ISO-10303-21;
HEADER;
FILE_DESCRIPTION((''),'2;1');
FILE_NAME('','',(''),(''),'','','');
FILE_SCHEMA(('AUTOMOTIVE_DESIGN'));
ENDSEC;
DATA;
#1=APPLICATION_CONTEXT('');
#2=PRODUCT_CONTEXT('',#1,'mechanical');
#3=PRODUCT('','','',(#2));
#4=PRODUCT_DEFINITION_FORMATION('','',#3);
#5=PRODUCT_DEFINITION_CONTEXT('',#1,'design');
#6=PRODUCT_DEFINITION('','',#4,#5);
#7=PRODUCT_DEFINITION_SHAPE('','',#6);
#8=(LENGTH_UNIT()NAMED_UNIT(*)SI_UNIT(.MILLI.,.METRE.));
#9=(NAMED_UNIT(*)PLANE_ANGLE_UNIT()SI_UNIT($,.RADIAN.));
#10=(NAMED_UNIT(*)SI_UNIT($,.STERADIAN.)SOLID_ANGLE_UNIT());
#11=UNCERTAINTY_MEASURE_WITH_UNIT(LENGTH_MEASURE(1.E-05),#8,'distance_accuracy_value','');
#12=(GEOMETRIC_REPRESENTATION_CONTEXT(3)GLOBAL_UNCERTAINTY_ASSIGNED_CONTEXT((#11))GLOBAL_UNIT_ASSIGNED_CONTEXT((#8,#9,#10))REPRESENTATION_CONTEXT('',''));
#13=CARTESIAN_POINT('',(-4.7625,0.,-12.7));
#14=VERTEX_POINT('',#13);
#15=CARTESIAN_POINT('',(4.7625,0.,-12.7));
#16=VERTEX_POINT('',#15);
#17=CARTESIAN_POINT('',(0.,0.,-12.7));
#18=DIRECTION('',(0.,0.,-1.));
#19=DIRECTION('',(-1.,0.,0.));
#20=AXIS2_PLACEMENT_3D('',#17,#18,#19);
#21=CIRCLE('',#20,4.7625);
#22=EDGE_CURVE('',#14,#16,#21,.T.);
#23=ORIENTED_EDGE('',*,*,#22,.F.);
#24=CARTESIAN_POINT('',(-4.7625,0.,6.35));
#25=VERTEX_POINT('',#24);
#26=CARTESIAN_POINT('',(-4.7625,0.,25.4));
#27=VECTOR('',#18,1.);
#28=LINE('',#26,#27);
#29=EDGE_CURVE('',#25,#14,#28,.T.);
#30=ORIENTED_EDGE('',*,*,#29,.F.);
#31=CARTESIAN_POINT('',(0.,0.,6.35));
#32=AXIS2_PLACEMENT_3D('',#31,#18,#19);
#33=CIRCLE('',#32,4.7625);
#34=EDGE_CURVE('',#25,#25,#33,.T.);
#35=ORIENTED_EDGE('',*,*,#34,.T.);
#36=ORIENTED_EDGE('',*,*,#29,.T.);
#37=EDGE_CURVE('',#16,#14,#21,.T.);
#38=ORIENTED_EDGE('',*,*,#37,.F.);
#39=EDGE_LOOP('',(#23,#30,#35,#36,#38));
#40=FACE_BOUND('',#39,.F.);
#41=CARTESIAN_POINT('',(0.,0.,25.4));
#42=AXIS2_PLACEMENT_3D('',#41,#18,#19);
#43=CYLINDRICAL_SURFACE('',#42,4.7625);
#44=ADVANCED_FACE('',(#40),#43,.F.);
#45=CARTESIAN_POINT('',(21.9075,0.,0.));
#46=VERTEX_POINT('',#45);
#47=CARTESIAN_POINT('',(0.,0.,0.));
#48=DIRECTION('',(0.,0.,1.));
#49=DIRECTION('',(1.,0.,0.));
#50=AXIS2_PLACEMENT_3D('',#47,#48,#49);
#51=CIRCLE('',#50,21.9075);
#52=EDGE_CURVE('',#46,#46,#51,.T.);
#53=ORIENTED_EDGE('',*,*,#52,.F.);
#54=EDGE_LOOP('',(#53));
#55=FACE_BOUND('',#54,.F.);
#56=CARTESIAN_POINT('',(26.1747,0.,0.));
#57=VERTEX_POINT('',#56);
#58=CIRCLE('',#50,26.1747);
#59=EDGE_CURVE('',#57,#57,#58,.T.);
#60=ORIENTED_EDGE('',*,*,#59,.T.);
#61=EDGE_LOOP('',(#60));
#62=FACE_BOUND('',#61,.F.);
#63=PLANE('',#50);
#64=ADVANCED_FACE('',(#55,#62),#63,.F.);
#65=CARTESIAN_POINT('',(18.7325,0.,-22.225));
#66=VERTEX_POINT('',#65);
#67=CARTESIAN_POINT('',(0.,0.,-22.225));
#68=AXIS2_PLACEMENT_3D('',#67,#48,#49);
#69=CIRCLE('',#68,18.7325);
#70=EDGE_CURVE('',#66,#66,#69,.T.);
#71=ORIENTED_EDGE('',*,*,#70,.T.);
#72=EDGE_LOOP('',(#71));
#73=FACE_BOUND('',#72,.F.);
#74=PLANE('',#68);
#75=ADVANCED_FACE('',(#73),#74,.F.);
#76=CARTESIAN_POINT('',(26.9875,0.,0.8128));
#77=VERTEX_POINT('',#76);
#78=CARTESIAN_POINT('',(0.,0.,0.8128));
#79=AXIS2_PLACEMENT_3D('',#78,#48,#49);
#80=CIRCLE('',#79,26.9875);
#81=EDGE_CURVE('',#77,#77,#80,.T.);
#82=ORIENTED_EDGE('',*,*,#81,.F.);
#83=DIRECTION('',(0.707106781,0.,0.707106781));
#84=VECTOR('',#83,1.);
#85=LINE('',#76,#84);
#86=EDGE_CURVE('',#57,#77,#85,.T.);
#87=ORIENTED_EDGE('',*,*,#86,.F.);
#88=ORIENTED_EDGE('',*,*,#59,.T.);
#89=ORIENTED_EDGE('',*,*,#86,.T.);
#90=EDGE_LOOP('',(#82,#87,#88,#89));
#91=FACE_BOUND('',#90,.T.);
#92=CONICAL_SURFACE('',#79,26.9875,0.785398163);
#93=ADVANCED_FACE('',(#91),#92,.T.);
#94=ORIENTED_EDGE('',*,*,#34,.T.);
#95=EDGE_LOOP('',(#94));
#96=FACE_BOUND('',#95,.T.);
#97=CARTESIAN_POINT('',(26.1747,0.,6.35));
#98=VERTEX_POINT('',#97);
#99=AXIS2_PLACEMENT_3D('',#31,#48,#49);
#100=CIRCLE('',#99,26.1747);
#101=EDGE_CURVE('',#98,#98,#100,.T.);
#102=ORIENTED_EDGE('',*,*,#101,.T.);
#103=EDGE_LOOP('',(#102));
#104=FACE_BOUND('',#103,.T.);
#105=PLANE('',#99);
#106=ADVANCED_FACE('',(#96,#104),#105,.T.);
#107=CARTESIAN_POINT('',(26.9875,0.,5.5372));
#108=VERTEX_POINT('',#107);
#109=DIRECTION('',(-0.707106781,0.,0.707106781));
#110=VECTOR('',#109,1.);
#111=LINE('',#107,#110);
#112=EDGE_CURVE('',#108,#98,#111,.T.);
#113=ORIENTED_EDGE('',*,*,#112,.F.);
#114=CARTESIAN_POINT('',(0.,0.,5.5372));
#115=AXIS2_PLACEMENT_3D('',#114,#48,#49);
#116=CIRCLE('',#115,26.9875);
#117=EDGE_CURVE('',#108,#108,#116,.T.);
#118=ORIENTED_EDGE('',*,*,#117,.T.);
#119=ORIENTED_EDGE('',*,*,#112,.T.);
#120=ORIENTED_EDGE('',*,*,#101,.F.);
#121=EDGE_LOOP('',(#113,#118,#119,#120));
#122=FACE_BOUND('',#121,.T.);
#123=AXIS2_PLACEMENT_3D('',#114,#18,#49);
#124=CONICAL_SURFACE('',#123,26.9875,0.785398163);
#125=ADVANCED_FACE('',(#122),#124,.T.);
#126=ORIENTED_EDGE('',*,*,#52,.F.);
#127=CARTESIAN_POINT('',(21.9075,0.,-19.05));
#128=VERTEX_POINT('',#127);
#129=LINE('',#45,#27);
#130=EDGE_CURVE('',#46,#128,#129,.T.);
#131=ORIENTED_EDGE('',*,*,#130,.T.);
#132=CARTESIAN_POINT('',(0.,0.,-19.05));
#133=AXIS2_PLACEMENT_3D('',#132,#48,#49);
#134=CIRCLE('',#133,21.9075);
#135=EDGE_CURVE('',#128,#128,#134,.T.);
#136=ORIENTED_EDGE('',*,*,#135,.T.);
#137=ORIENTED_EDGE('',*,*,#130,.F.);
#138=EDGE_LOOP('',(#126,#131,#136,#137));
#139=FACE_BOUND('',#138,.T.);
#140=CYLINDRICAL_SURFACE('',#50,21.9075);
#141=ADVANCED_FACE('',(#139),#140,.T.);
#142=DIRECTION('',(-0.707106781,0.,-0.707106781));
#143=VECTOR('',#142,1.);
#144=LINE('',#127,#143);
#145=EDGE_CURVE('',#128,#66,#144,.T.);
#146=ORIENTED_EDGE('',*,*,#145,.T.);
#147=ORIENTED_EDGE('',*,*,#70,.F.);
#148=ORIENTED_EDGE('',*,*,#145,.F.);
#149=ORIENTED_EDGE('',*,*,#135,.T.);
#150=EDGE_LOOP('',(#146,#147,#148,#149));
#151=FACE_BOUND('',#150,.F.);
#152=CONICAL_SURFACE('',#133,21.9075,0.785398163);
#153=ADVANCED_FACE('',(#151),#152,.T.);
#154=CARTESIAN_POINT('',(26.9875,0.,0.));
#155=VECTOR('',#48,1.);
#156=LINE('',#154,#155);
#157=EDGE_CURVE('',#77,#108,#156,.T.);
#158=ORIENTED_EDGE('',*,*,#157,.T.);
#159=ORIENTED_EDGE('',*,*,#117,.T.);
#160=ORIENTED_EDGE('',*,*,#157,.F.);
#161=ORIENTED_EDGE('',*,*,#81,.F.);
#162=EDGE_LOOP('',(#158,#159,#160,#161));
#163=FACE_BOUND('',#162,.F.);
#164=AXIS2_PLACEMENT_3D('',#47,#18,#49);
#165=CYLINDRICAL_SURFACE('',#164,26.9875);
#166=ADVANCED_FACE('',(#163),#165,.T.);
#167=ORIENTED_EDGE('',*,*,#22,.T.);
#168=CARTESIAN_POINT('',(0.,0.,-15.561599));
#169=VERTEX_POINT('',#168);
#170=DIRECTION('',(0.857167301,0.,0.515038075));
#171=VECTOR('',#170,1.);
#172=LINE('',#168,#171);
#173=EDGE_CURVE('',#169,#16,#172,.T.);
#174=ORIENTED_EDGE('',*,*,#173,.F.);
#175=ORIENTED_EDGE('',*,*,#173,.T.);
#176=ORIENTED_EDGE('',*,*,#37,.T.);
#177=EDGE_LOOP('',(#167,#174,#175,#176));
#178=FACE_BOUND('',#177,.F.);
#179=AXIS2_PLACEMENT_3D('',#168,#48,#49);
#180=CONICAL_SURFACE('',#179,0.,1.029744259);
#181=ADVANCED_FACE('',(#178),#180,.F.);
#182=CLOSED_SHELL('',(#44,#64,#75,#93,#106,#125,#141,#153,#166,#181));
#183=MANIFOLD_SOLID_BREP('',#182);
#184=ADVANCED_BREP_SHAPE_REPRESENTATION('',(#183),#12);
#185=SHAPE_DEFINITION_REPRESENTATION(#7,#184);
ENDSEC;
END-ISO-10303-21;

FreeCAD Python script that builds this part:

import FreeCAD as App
import Part
import Sketcher
from FreeCAD import Vector
Q = App.Units.Quantity


def edges_at(feature, points):
    """Names of the edges that pass closest to the given points."""
    edges = feature.Shape.Edges
    near = lambda p: min(range(len(edges)), key=lambda i: edges[i].distToShape(Part.Vertex(*p))[0])
    return sorted({f"Edge{near(p) + 1}" for p in points})

doc = App.newDocument("Part")
body = doc.addObject("PartDesign::Body", "Body")

# Sketch on XY plane
sketch1 = body.newObject("Sketcher::SketchObject", "Sketch")
sketch1.AttachmentSupport = (doc.getObject("XY_Plane"), [""])
sketch1.MapMode = "FlatFace"
sketch1.addGeometry(Part.Circle(Vector(0, 0, 0), Vector(0, 0, 1), 22), False)
sketch1.addConstraint(Sketcher.Constraint("Coincident", 0, 3, -1, 1))
sketch1.addConstraint(Sketcher.Constraint("Diameter", 0, Q("1.725 in")))
pad1 = body.newObject("PartDesign::Pad", "Pad")
pad1.Profile = sketch1
pad1.Length = Q("0.875 in")
pad1.Reversed = True

# Sketch on XY plane
sketch2 = body.newObject("Sketcher::SketchObject", "Sketch001")
sketch2.AttachmentSupport = (doc.getObject("XY_Plane"), [""])
sketch2.MapMode = "FlatFace"
sketch2.addGeometry(Part.Circle(Vector(0, 0, 0), Vector(0, 0, 1), 27), False)
sketch2.addConstraint(Sketcher.Constraint("Coincident", 0, 3, -1, 1))
sketch2.addConstraint(Sketcher.Constraint("Diameter", 0, Q("2.125 in")))
pad2 = body.newObject("PartDesign::Pad", "Pad001")
pad2.Profile = sketch2
pad2.Length = Q("0.25 in")
doc.recompute()

chamfer = body.newObject("PartDesign::Chamfer", "Chamfer")
chamfer.Base = (pad2, edges_at(pad2, [(-21.907, 0, -22.225)]))
chamfer.Size = Q("0.125 in")
doc.recompute()

chamfer2 = body.newObject("PartDesign::Chamfer", "Chamfer001")
chamfer2.Base = (chamfer, edges_at(chamfer, [(-26.988, 0, 0), (-26.988, 0, 6.35)]))
chamfer2.Size = Q("0.032 in")

# Sketch on XY plane
sketch3 = body.newObject("Sketcher::SketchObject", "Sketch002")
sketch3.AttachmentSupport = (doc.getObject("XY_Plane"), [""])
sketch3.MapMode = "FlatFace"
sketch3.AttachmentOffset = App.Placement(Vector(0, 0, 0.25 * 25.4), App.Rotation())
sketch3.addGeometry(Part.Circle(Vector(0, 0, 0), Vector(0, 0, 1), 4.8), False)
sketch3.addConstraint(Sketcher.Constraint("Coincident", 0, 3, -1, 1))
sketch3.addConstraint(Sketcher.Constraint("Diameter", 0, Q("0.375 in")))
doc.recompute()
hole = body.newObject("PartDesign::Hole", "Hole")
hole.Profile = sketch3
hole.ThreadType = "None"
hole.Diameter = Q("0.375 in")
hole.DepthType = "Dimension"
hole.Depth = Q("0.75 in")
hole.DrillPoint = "Angled"
hole.DrillPointAngle = 118

doc.recompute()
